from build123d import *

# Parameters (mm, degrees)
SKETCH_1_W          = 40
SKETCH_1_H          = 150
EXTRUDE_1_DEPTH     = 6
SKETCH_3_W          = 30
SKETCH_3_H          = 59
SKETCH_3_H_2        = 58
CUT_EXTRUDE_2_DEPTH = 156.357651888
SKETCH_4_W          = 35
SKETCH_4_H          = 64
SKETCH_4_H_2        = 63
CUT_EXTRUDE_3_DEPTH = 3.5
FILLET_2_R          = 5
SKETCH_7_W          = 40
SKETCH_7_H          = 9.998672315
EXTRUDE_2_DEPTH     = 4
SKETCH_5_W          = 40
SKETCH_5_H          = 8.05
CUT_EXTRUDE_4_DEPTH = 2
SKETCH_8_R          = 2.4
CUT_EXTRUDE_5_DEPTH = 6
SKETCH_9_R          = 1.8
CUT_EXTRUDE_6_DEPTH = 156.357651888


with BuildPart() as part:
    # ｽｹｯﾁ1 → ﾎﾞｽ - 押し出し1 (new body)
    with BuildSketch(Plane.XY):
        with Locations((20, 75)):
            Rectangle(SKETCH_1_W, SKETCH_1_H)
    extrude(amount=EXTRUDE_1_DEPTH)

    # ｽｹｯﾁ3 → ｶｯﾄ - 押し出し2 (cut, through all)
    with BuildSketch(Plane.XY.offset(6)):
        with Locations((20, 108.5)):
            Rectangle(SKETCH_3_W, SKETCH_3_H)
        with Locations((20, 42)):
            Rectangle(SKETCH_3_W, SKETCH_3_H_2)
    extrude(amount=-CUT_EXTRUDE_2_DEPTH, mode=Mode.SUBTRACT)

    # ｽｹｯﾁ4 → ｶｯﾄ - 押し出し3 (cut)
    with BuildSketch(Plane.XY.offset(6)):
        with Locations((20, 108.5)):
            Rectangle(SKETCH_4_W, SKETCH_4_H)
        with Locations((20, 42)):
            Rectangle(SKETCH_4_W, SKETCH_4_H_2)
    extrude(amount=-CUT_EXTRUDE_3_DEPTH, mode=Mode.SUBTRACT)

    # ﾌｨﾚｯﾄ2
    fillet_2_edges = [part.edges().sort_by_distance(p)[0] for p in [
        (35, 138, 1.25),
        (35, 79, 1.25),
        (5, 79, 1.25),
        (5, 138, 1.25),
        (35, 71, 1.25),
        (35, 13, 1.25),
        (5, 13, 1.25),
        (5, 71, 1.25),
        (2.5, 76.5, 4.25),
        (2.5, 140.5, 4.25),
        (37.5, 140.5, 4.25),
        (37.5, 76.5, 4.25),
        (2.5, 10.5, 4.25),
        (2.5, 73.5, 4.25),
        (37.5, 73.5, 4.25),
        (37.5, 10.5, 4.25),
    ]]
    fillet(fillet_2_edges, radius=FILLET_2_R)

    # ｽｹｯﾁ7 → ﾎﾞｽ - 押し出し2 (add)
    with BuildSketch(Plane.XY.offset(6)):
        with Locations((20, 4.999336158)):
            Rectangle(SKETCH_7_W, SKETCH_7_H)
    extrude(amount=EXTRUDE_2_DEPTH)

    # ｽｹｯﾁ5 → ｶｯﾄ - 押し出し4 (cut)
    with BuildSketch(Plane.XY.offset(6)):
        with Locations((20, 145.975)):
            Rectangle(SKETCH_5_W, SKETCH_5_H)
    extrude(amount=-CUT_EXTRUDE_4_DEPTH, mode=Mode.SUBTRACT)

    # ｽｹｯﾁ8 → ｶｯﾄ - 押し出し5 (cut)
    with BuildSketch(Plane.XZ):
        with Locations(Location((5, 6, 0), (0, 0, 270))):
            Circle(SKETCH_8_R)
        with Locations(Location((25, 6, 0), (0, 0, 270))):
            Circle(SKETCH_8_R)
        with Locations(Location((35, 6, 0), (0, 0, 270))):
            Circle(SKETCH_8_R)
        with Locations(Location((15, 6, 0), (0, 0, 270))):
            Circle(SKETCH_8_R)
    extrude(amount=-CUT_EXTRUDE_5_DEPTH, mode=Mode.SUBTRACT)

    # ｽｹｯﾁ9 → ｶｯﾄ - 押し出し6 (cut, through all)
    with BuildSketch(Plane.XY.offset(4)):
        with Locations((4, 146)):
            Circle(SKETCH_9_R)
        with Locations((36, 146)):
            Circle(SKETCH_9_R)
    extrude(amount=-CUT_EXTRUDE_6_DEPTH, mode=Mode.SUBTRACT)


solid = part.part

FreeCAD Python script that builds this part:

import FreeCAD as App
import Part
import Sketcher


def edges_at(feature, points):
    """Names of the edges that pass closest to the given points."""
    edges = feature.Shape.Edges
    near = lambda p: min(range(len(edges)), key=lambda i: edges[i].distToShape(Part.Vertex(*p))[0])
    return sorted({f"Edge{near(p) + 1}" for p in points})

doc = App.newDocument("Part")
body = doc.addObject("PartDesign::Body", "Body")

# Sketch on XY plane
sketch1 = body.newObject("Sketcher::SketchObject", "Sketch")
sketch1.AttachmentSupport = (doc.getObject("XY_Plane"), [""])
sketch1.MapMode = "FlatFace"
sketch1.addGeometry(Part.LineSegment(App.Vector(0, 150, 0), App.Vector(0, 0, 0)), False)
sketch1.addGeometry(Part.LineSegment(App.Vector(0, 0, 0), App.Vector(40, 0, 0)), False)
sketch1.addGeometry(Part.LineSegment(App.Vector(40, 0, 0), App.Vector(40, 150, 0)), False)
sketch1.addGeometry(Part.LineSegment(App.Vector(40, 150, 0), App.Vector(0, 150, 0)), False)
sketch1.addConstraint(Sketcher.Constraint("Coincident", 0, 2, 1, 1))
sketch1.addConstraint(Sketcher.Constraint("Coincident", 1, 2, 2, 1))
sketch1.addConstraint(Sketcher.Constraint("Coincident", 2, 2, 3, 1))
sketch1.addConstraint(Sketcher.Constraint("Coincident", 3, 2, 0, 1))
sketch1.addConstraint(Sketcher.Constraint("Vertical", 0))
sketch1.addConstraint(Sketcher.Constraint("Horizontal", 1))
sketch1.addConstraint(Sketcher.Constraint("Vertical", 2))
sketch1.addConstraint(Sketcher.Constraint("Horizontal", 3))
sketch1.addConstraint(Sketcher.Constraint("Coincident", 0, 2, -1, 1))
sketch1.addConstraint(Sketcher.Constraint("DistanceX", 1, 1, 1, 2, 40.0))
sketch1.addConstraint(Sketcher.Constraint("DistanceY", 0, 2, 0, 1, 150.0))
pad1 = body.newObject("PartDesign::Pad", "Pad")
pad1.Profile = sketch1
pad1.Length = 6

# Sketch on XY plane
sketch2 = body.newObject("Sketcher::SketchObject", "Sketch001")
sketch2.AttachmentSupport = (doc.getObject("XY_Plane"), [""])
sketch2.MapMode = "FlatFace"
sketch2.AttachmentOffset = App.Placement(App.Vector(0, 0, 6), App.Rotation())
sketch2.addGeometry(Part.LineSegment(App.Vector(5, 138, 0), App.Vector(5, 79, 0)), False)
sketch2.addGeometry(Part.LineSegment(App.Vector(5, 79, 0), App.Vector(35, 79, 0)), False)
sketch2.addGeometry(Part.LineSegment(App.Vector(35, 79, 0), App.Vector(35, 138, 0)), False)
sketch2.addGeometry(Part.LineSegment(App.Vector(35, 138, 0), App.Vector(5, 138, 0)), False)
sketch2.addGeometry(Part.LineSegment(App.Vector(5, 71, 0), App.Vector(5, 13, 0)), False)
sketch2.addGeometry(Part.LineSegment(App.Vector(5, 13, 0), App.Vector(35, 13, 0)), False)
sketch2.addGeometry(Part.LineSegment(App.Vector(35, 13, 0), App.Vector(35, 71, 0)), False)
sketch2.addGeometry(Part.LineSegment(App.Vector(35, 71, 0), App.Vector(5, 71, 0)), False)
sketch2.addConstraint(Sketcher.Constraint("Coincident", 0, 2, 1, 1))
sketch2.addConstraint(Sketcher.Constraint("Coincident", 1, 2, 2, 1))
sketch2.addConstraint(Sketcher.Constraint("Coincident", 2, 2, 3, 1))
sketch2.addConstraint(Sketcher.Constraint("Coincident", 3, 2, 0, 1))
sketch2.addConstraint(Sketcher.Constraint("Coincident", 4, 2, 5, 1))
sketch2.addConstraint(Sketcher.Constraint("Coincident", 5, 2, 6, 1))
sketch2.addConstraint(Sketcher.Constraint("Coincident", 6, 2, 7, 1))
sketch2.addConstraint(Sketcher.Constraint("Coincident", 7, 2, 4, 1))
sketch2.addConstraint(Sketcher.Constraint("Vertical", 0))
sketch2.addConstraint(Sketcher.Constraint("Horizontal", 1))
sketch2.addConstraint(Sketcher.Constraint("Vertical", 2))
sketch2.addConstraint(Sketcher.Constraint("Horizontal", 3))
sketch2.addConstraint(Sketcher.Constraint("Vertical", 4))
sketch2.addConstraint(Sketcher.Constraint("Horizontal", 5))
sketch2.addConstraint(Sketcher.Constraint("Vertical", 6))
sketch2.addConstraint(Sketcher.Constraint("Horizontal", 7))
sketch2.addConstraint(Sketcher.Constraint("Vertical", 3, 2, 4, 2))
sketch2.addConstraint(Sketcher.Constraint("Vertical", 2, 2, 5, 2))
sketch2.addConstraint(Sketcher.Constraint("DistanceX", 1, 1, 1, 2, 30.0))
sketch2.addConstraint(Sketcher.Constraint("DistanceY", 0, 2, 0, 1, 59.0))
sketch2.addConstraint(Sketcher.Constraint("DistanceY", 4, 2, 4, 1, 58.0))
sketch2.addConstraint(Sketcher.Constraint("DistanceX", -1, 1, 0, 2, 5.0))
sketch2.addConstraint(Sketcher.Constraint("DistanceY", -1, 1, 0, 2, 79.0))
sketch2.addConstraint(Sketcher.Constraint("DistanceY", -1, 1, 4, 2, 13.0))
pocket1 = body.newObject("PartDesign::Pocket", "Pocket")
pocket1.Profile = sketch2
pocket1.Type = "ThroughAll"

# Sketch on XY plane
sketch3 = body.newObject("Sketcher::SketchObject", "Sketch002")
sketch3.AttachmentSupport = (doc.getObject("XY_Plane"), [""])
sketch3.MapMode = "FlatFace"
sketch3.AttachmentOffset = App.Placement(App.Vector(0, 0, 6), App.Rotation())
sketch3.addGeometry(Part.LineSegment(App.Vector(2, 140, 0), App.Vector(2, 76, 0)), False)
sketch3.addGeometry(Part.LineSegment(App.Vector(2, 76, 0), App.Vector(38, 76, 0)), False)
sketch3.addGeometry(Part.LineSegment(App.Vector(38, 76, 0), App.Vector(38, 140, 0)), False)
sketch3.addGeometry(Part.LineSegment(App.Vector(38, 140, 0), App.Vector(2, 140, 0)), False)
sketch3.addGeometry(Part.LineSegment(App.Vector(2, 74, 0), App.Vector(2, 10, 0)), False)
sketch3.addGeometry(Part.LineSegment(App.Vector(2, 10, 0), App.Vector(38, 10, 0)), False)
sketch3.addGeometry(Part.LineSegment(App.Vector(38, 10, 0), App.Vector(38, 74, 0)), False)
sketch3.addGeometry(Part.LineSegment(App.Vector(38, 74, 0), App.Vector(2, 74, 0)), False)
sketch3.addConstraint(Sketcher.Constraint("Coincident", 0, 2, 1, 1))
sketch3.addConstraint(Sketcher.Constraint("Coincident", 1, 2, 2, 1))
sketch3.addConstraint(Sketcher.Constraint("Coincident", 2, 2, 3, 1))
sketch3.addConstraint(Sketcher.Constraint("Coincident", 3, 2, 0, 1))
sketch3.addConstraint(Sketcher.Constraint("Coincident", 4, 2, 5, 1))
sketch3.addConstraint(Sketcher.Constraint("Coincident", 5, 2, 6, 1))
sketch3.addConstraint(Sketcher.Constraint("Coincident", 6, 2, 7, 1))
sketch3.addConstraint(Sketcher.Constraint("Coincident", 7, 2, 4, 1))
sketch3.addConstraint(Sketcher.Constraint("Vertical", 0))
sketch3.addConstraint(Sketcher.Constraint("Horizontal", 1))
sketch3.addConstraint(Sketcher.Constraint("Vertical", 2))
sketch3.addConstraint(Sketcher.Constraint("Horizontal", 3))
sketch3.addConstraint(Sketcher.Constraint("Vertical", 4))
sketch3.addConstraint(Sketcher.Constraint("Horizontal", 5))
sketch3.addConstraint(Sketcher.Constraint("Vertical", 6))
sketch3.addConstraint(Sketcher.Constraint("Horizontal", 7))
sketch3.addConstraint(Sketcher.Constraint("Vertical", 3, 2, 4, 2))
sketch3.addConstraint(Sketcher.Constraint("Vertical", 2, 2, 5, 2))
sketch3.addConstraint(Sketcher.Constraint("DistanceX", 1, 1, 1, 2, 35.0))
sketch3.addConstraint(Sketcher.Constraint("DistanceY", 0, 2, 0, 1, 64.0))
sketch3.addConstraint(Sketcher.Constraint("DistanceY", 4, 2, 4, 1, 63.0))
sketch3.addConstraint(Sketcher.Constraint("DistanceY", 4, 2, 0, 2, 66.0))
sketch3.addConstraint(Sketcher.Constraint("DistanceX", -1, 1, 0, 2, 2.5))
sketch3.addConstraint(Sketcher.Constraint("DistanceY", -1, 1, 0, 2, 76.5))
pocket2 = body.newObject("PartDesign::Pocket", "Pocket001")
pocket2.Profile = sketch3
pocket2.Length = 3.5
doc.recompute()

fillet = body.newObject("PartDesign::Fillet", "Fillet")
fillet.Base = (pocket2, edges_at(pocket2, [
    (35, 138, 1.25),
    (35, 79, 1.25),
    (5, 79, 1.25),
    (5, 138, 1.25),
    (35, 71, 1.25),
    (35, 13, 1.25),
    (5, 13, 1.25),
    (5, 71, 1.25),
    (2.5, 76.5, 4.25),
    (2.5, 140.5, 4.25),
    (37.5, 140.5, 4.25),
    (37.5, 76.5, 4.25),
    (2.5, 10.5, 4.25),
    (2.5, 73.5, 4.25),
    (37.5, 73.5, 4.25),
    (37.5, 10.5, 4.25),
]))
fillet.Radius = 5

# Sketch on XY plane
sketch4 = body.newObject("Sketcher::SketchObject", "Sketch003")
sketch4.AttachmentSupport = (doc.getObject("XY_Plane"), [""])
sketch4.MapMode = "FlatFace"
sketch4.AttachmentOffset = App.Placement(App.Vector(0, 0, 6), App.Rotation())
sketch4.addGeometry(Part.LineSegment(App.Vector(0, 10, 0), App.Vector(0, 0, 0)), False)
sketch4.addGeometry(Part.LineSegment(App.Vector(0, 0, 0), App.Vector(40, 0, 0)), False)
sketch4.addGeometry(Part.LineSegment(App.Vector(40, 0, 0), App.Vector(40, 10, 0)), False)
sketch4.addGeometry(Part.LineSegment(App.Vector(40, 10, 0), App.Vector(0, 10, 0)), False)
sketch4.addConstraint(Sketcher.Constraint("Coincident", 0, 2, 1, 1))
sketch4.addConstraint(Sketcher.Constraint("Coincident", 1, 2, 2, 1))
sketch4.addConstraint(Sketcher.Constraint("Coincident", 2, 2, 3, 1))
sketch4.addConstraint(Sketcher.Constraint("Coincident", 3, 2, 0, 1))
sketch4.addConstraint(Sketcher.Constraint("Vertical", 0))
sketch4.addConstraint(Sketcher.Constraint("Horizontal", 1))
sketch4.addConstraint(Sketcher.Constraint("Vertical", 2))
sketch4.addConstraint(Sketcher.Constraint("Horizontal", 3))
sketch4.addConstraint(Sketcher.Constraint("Coincident", 0, 2, -1, 1))
sketch4.addConstraint(Sketcher.Constraint("DistanceX", 1, 1, 1, 2, 40.0))
sketch4.addConstraint(Sketcher.Constraint("DistanceY", 0, 2, 0, 1, 9.998672))
pad2 = body.newObject("PartDesign::Pad", "Pad001")
pad2.Profile = sketch4
pad2.Length = 4

# Sketch on XY plane
sketch5 = body.newObject("Sketcher::SketchObject", "Sketch004")
sketch5.AttachmentSupport = (doc.getObject("XY_Plane"), [""])
sketch5.MapMode = "FlatFace"
sketch5.AttachmentOffset = App.Placement(App.Vector(0, 0, 6), App.Rotation())
sketch5.addGeometry(Part.LineSegment(App.Vector(0, 150, 0), App.Vector(0, 142, 0)), False)
sketch5.addGeometry(Part.LineSegment(App.Vector(0, 142, 0), App.Vector(40, 142, 0)), False)
sketch5.addGeometry(Part.LineSegment(App.Vector(40, 142, 0), App.Vector(40, 150, 0)), False)
sketch5.addGeometry(Part.LineSegment(App.Vector(40, 150, 0), App.Vector(0, 150, 0)), False)
sketch5.addConstraint(Sketcher.Constraint("Coincident", 0, 2, 1, 1))
sketch5.addConstraint(Sketcher.Constraint("Coincident", 1, 2, 2, 1))
sketch5.addConstraint(Sketcher.Constraint("Coincident", 2, 2, 3, 1))
sketch5.addConstraint(Sketcher.Constraint("Coincident", 3, 2, 0, 1))
sketch5.addConstraint(Sketcher.Constraint("Vertical", 0))
sketch5.addConstraint(Sketcher.Constraint("Horizontal", 1))
sketch5.addConstraint(Sketcher.Constraint("Vertical", 2))
sketch5.addConstraint(Sketcher.Constraint("Horizontal", 3))
sketch5.addConstraint(Sketcher.Constraint("PointOnObject", 0, 2, -2))
sketch5.addConstraint(Sketcher.Constraint("DistanceX", 1, 1, 1, 2, 40.0))
sketch5.addConstraint(Sketcher.Constraint("DistanceY", -1, 1, 2, 2, 150.0))
sketch5.addConstraint(Sketcher.Constraint("DistanceY", 0, 2, 0, 1, 8.05))
pocket3 = body.newObject("PartDesign::Pocket", "Pocket002")
pocket3.Profile = sketch5
pocket3.Length = 2

# Sketch on XZ plane
sketch6 = body.newObject("Sketcher::SketchObject", "Sketch005")
sketch6.AttachmentSupport = (doc.getObject("XZ_Plane"), [""])
sketch6.MapMode = "FlatFace"
sketch6.addGeometry(Part.Circle(App.Vector(5, 6, 0), App.Vector(0, 0, 1), 2.4), False)
sketch6.addGeometry(Part.Circle(App.Vector(25, 6, 0), App.Vector(0, 0, 1), 2.4), False)
sketch6.addGeometry(Part.Circle(App.Vector(35, 6, 0), App.Vector(0, 0, 1), 2.4), False)
sketch6.addGeometry(Part.Circle(App.Vector(15, 6, 0), App.Vector(0, 0, 1), 2.4), False)
sketch6.addConstraint(Sketcher.Constraint("Equal", 0, 1))
sketch6.addConstraint(Sketcher.Constraint("Equal", 1, 2))
sketch6.addConstraint(Sketcher.Constraint("Equal", 2, 3))
sketch6.addConstraint(Sketcher.Constraint("Horizontal", 0, 3, 1, 3))
sketch6.addConstraint(Sketcher.Constraint("Horizontal", 1, 3, 2, 3))
sketch6.addConstraint(Sketcher.Constraint("Horizontal", 2, 3, 3, 3))
sketch6.addConstraint(Sketcher.Constraint("Diameter", 0, 4.8))
sketch6.addConstraint(Sketcher.Constraint("DistanceX", -1, 1, 0, 3, 5.0))
sketch6.addConstraint(Sketcher.Constraint("DistanceY", -1, 1, 0, 3, 6.0))
sketch6.addConstraint(Sketcher.Constraint("DistanceX", -1, 1, 1, 3, 25.0))
sketch6.addConstraint(Sketcher.Constraint("DistanceX", -1, 1, 2, 3, 35.0))
sketch6.addConstraint(Sketcher.Constraint("DistanceX", -1, 1, 3, 3, 15.0))
pocket4 = body.newObject("PartDesign::Pocket", "Pocket003")
pocket4.Profile = sketch6
pocket4.Length = 6

# Sketch on XY plane
sketch7 = body.newObject("Sketcher::SketchObject", "Sketch006")
sketch7.AttachmentSupport = (doc.getObject("XY_Plane"), [""])
sketch7.MapMode = "FlatFace"
sketch7.AttachmentOffset = App.Placement(App.Vector(0, 0, 4), App.Rotation())
sketch7.addGeometry(Part.Circle(App.Vector(4, 146, 0), App.Vector(0, 0, 1), 1.8), False)
sketch7.addGeometry(Part.Circle(App.Vector(36, 146, 0), App.Vector(0, 0, 1), 1.8), False)
sketch7.addConstraint(Sketcher.Constraint("Equal", 0, 1))
sketch7.addConstraint(Sketcher.Constraint("Horizontal", 0, 3, 1, 3))
sketch7.addConstraint(Sketcher.Constraint("Diameter", 0, 3.6))
sketch7.addConstraint(Sketcher.Constraint("DistanceX", -1, 1, 0, 3, 4.0))
sketch7.addConstraint(Sketcher.Constraint("DistanceY", -1, 1, 0, 3, 146.0))
sketch7.addConstraint(Sketcher.Constraint("DistanceX", -1, 1, 1, 3, 36.0))
pocket5 = body.newObject("PartDesign::Pocket", "Pocket004")
pocket5.Profile = sketch7
pocket5.Type = "ThroughAll"

doc.recompute()
